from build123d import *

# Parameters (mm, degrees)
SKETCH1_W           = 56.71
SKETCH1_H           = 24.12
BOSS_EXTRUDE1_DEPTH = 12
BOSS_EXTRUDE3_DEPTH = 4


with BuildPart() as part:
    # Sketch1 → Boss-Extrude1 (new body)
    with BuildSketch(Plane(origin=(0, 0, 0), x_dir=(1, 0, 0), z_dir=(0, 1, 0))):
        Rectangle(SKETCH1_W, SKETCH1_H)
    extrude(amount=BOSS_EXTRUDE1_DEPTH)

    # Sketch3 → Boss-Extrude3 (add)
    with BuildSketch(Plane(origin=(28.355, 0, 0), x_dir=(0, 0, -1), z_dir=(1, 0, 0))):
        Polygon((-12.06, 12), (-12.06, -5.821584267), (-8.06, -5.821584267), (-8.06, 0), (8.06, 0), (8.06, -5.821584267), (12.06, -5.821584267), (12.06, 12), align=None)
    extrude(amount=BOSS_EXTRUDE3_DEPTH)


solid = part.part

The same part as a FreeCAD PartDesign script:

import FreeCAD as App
import Part
import Sketcher
from FreeCAD import Vector
Q = App.Units.Quantity


def add_polygon(sketch, points):
    """Adds a closed chain of lines whose ends are joined by coincident constraints."""
    first, n = sketch.GeometryCount, len(points)
    for a, b in zip(points, points[1:] + points[:1]):
        sketch.addGeometry(Part.LineSegment(App.Vector(*a, 0), App.Vector(*b, 0)), False)
    for i in range(n):
        sketch.addConstraint(Sketcher.Constraint("Coincident", first + i, 2, first + (i + 1) % n, 1))

doc = App.newDocument("Part")
params = doc.addObject("Spreadsheet::Sheet", "Params")
for row, (alias, value) in enumerate([
    ("sketch1_width", "56.71 mm"),
    ("sketch1_height", "24.12 mm"),
    ("pad1_length", "12 mm"),
    ("sketch2_height", "4 mm"),
    ("sketch2_height2", "16.12 mm"),
    ("pad2_length", "4 mm"),
], start=1):
    params.set(f"A{row}", alias)
    params.set(f"B{row}", "=" + value)
    params.setAlias(f"B{row}", alias)

body = doc.addObject("PartDesign::Body", "Body")

# Sketch on XZ plane
sketch1 = body.newObject("Sketcher::SketchObject", "Sketch")
sketch1.AttachmentSupport = (doc.getObject("XZ_Plane"), [""])
sketch1.MapMode = "FlatFace"
add_polygon(sketch1, [(-28.355, -12.06), (-28.355, 12.06), (28.355, 12.06), (28.355, -12.06)])  # lines 0-3
sketch1.addConstraint(Sketcher.Constraint("Vertical", 0))
sketch1.addConstraint(Sketcher.Constraint("Horizontal", 1))
sketch1.addConstraint(Sketcher.Constraint("Vertical", 2))
sketch1.addConstraint(Sketcher.Constraint("Horizontal", 3))
sketch1.addConstraint(Sketcher.Constraint("Symmetric", 0, 2, 2, 2, -1, 1))
sketch1.addConstraint(Sketcher.Constraint("DistanceX", 1, 1, 1, 2, Q("56.71 mm")))
sketch1.addConstraint(Sketcher.Constraint("DistanceY", 0, 1, 0, 2, Q("24.12 mm")))
sketch1.setExpression("Constraints[9]", "Params.sketch1_width")
sketch1.setExpression("Constraints[10]", "Params.sketch1_height")
pad1 = body.newObject("PartDesign::Pad", "Pad")
pad1.Profile = sketch1
pad1.setExpression("Length", "Params.pad1_length")
pad1.Reversed = True

# Sketch on YZ plane
sketch2 = body.newObject("Sketcher::SketchObject", "Sketch001")
sketch2.AttachmentSupport = (doc.getObject("YZ_Plane"), [""])
sketch2.MapMode = "FlatFace"
sketch2.AttachmentOffset = App.Placement(Vector(0, 0, 28.355), App.Rotation())
add_polygon(sketch2, [(12, 12.06), (-5.821584, 12.06), (-5.821584, 8.06), (0, 8.06), (0, -8.06), (-5.821584, -8.06), (-5.821584, -12.06), (12, -12.06)])  # lines 0-7
sketch2.addConstraint(Sketcher.Constraint("Horizontal", 0))
sketch2.addConstraint(Sketcher.Constraint("Vertical", 1))
sketch2.addConstraint(Sketcher.Constraint("Horizontal", 2))
sketch2.addConstraint(Sketcher.Constraint("Vertical", 3))
sketch2.addConstraint(Sketcher.Constraint("Horizontal", 4))
sketch2.addConstraint(Sketcher.Constraint("Vertical", 5))
sketch2.addConstraint(Sketcher.Constraint("Horizontal", 6))
sketch2.addConstraint(Sketcher.Constraint("Vertical", 7))
sketch2.addConstraint(Sketcher.Constraint("Symmetric", 2, 2, 3, 2, -1, 1))
sketch2.addConstraint(Sketcher.Constraint("Symmetric", 0, 2, 5, 2, -1))
sketch2.addConstraint(Sketcher.Constraint("DistanceY", 1, 2, 1, 1, Q("4 mm")))
sketch2.addConstraint(Sketcher.Constraint("DistanceX", -1, 1, 6, 2, Q("12 mm")))
sketch2.addConstraint(Sketcher.Constraint("DistanceY", 3, 2, 3, 1, Q("16.12 mm")))
sketch2.addConstraint(Sketcher.Constraint("DistanceX", 0, 2, 0, 1, Q("17.821584 mm")))
sketch2.setExpression("Constraints[18]", "Params.sketch2_height")
sketch2.setExpression("Constraints[20]", "Params.sketch2_height2")
pad2 = body.newObject("PartDesign::Pad", "Pad001")
pad2.Profile = sketch2
pad2.setExpression("Length", "Params.pad2_length")

doc.recompute()
